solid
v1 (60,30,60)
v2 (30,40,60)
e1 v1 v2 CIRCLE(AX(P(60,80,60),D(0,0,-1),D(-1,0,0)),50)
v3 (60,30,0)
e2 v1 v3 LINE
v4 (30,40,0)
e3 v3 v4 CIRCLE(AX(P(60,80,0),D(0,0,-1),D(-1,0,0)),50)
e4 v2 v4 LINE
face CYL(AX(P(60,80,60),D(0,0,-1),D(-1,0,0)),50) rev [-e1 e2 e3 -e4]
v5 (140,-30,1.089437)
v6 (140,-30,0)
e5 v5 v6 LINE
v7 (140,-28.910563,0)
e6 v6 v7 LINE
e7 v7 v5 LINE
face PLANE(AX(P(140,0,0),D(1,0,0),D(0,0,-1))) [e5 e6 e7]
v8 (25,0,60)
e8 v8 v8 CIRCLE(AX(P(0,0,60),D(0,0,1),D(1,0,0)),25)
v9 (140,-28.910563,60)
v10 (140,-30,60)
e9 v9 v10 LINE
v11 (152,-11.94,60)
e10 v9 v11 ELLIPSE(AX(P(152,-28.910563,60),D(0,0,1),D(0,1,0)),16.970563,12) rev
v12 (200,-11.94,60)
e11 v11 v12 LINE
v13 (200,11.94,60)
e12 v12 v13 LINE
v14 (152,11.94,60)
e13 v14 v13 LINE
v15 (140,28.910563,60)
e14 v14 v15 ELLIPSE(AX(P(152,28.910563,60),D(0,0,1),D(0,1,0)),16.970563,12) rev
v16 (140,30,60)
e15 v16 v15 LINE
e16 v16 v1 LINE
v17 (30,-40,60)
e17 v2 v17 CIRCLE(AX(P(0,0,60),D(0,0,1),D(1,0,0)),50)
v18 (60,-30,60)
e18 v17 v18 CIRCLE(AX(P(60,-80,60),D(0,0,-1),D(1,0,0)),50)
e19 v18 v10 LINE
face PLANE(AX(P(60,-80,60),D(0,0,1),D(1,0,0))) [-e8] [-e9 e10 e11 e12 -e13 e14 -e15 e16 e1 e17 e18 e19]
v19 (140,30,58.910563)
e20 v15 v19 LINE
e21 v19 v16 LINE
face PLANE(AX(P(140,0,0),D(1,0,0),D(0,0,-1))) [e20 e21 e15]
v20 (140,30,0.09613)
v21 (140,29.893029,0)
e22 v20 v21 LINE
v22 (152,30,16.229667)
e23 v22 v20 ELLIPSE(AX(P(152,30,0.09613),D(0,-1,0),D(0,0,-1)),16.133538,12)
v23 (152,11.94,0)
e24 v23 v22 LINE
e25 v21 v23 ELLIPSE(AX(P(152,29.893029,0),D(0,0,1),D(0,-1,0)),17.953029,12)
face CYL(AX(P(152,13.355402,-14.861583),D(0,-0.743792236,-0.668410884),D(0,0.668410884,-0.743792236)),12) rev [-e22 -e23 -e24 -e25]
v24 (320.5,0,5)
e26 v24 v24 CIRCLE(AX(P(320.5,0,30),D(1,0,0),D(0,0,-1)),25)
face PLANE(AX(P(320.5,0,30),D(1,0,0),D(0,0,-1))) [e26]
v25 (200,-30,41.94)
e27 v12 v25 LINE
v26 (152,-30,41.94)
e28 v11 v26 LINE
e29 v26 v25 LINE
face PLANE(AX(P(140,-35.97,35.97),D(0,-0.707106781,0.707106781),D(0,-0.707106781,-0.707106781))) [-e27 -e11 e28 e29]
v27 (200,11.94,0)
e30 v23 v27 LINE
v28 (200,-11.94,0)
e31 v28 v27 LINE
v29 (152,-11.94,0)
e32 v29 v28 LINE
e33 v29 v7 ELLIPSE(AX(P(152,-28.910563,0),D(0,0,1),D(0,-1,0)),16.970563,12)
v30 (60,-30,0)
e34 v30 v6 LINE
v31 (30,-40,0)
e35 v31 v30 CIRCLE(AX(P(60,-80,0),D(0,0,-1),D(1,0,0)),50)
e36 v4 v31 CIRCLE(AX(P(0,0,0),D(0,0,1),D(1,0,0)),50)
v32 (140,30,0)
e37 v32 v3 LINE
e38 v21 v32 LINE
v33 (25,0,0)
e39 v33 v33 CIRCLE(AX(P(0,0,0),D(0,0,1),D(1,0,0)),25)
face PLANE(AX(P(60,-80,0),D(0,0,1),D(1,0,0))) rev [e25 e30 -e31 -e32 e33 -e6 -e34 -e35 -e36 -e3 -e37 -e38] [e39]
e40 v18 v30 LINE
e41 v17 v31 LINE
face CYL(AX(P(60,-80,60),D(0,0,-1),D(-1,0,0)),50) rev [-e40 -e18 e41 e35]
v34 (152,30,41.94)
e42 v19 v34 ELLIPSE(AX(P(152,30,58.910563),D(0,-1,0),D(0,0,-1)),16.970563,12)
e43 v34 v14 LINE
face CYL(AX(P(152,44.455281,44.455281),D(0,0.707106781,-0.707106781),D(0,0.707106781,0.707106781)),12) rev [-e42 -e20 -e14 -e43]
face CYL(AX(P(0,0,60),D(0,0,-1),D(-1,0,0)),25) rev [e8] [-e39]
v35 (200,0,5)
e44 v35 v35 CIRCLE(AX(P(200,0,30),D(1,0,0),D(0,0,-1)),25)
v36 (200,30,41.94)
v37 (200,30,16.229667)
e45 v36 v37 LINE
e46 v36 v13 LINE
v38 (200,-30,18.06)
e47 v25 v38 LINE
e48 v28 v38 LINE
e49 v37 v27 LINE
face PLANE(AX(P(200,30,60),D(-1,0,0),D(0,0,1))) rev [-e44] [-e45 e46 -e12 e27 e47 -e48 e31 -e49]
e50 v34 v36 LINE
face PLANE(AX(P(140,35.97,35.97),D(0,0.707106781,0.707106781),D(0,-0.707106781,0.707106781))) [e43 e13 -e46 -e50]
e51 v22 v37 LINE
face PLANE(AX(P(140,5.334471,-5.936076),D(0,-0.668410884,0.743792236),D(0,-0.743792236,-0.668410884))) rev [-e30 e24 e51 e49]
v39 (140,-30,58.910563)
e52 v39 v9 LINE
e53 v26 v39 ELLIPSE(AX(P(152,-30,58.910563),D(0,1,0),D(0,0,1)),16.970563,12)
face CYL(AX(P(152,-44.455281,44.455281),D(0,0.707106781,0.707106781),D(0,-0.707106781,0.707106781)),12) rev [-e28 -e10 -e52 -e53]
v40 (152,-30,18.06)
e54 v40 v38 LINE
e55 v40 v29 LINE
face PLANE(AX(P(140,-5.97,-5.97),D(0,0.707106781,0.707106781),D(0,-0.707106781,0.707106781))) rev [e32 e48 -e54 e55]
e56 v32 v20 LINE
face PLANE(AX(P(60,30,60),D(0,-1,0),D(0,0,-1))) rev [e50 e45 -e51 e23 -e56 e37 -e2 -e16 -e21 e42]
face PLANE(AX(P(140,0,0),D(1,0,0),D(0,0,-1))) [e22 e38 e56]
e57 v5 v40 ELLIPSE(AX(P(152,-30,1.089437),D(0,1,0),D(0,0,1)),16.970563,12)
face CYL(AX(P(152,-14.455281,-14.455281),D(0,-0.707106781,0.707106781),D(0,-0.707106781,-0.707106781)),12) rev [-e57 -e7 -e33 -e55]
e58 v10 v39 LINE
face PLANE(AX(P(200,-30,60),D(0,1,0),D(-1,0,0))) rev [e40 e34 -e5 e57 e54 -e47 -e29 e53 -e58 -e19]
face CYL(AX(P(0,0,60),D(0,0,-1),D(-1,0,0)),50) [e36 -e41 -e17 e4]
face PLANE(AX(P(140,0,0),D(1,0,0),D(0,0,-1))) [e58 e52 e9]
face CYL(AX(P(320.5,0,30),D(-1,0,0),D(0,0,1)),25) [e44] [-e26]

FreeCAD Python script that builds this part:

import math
import FreeCAD as App
import Part
import Sketcher

V = App.Vector


def edges_at(feature, points):
    """Names of the edges that pass closest to the given points."""
    edges = feature.Shape.Edges
    near = lambda p: min(range(len(edges)), key=lambda i: edges[i].distToShape(Part.Vertex(*p))[0])
    return sorted({f"Edge{near(p) + 1}" for p in points})


def add_polygon(sketch, points):
    """Adds a closed chain of lines whose ends are joined by coincident constraints."""
    first, n = sketch.GeometryCount, len(points)
    for a, b in zip(points, points[1:] + points[:1]):
        sketch.addGeometry(Part.LineSegment(App.Vector(*a, 0), App.Vector(*b, 0)), False)
    for i in range(n):
        sketch.addConstraint(Sketcher.Constraint("Coincident", first + i, 2, first + (i + 1) % n, 1))

doc = App.newDocument("Part")
body = doc.addObject("PartDesign::Body", "Body")

# Sketch on XY plane
sketch1 = body.newObject("Sketcher::SketchObject", "Sketch")
sketch1.AttachmentSupport = (doc.getObject("XY_Plane"), [""])
sketch1.MapMode = "FlatFace"
sketch1.addGeometry([
    Part.LineSegment(V(200, 30, 0), V(60, 30, 0)),  # 0
    Part.ArcOfCircle(Part.Circle(V(60, 80, 0), V(0, 0, 1), 50), math.radians(-126.869898), math.radians(-90)),  # 1
    Part.ArcOfCircle(Part.Circle(V(0, 0, 0), V(0, 0, 1), 50), math.radians(53.130102), math.radians(306.869898)),  # 2
    Part.ArcOfCircle(Part.Circle(V(60, -80, 0), V(0, 0, 1), 50), math.radians(90), math.radians(126.869898)),  # 3
    Part.LineSegment(V(60, -30, 0), V(200, -30, 0)),  # 4
    Part.LineSegment(V(200, -30, 0), V(200, 30, 0)),  # 5
    Part.Circle(V(0, 0, 0), V(0, 0, 1), 25),  # 6
], False)
sketch1.addConstraint([
    Sketcher.Constraint("Tangent", 0, 2, 1, 2),
    Sketcher.Constraint("Tangent", 1, 1, 2, 1),
    Sketcher.Constraint("Tangent", 2, 2, 3, 2),
    Sketcher.Constraint("Tangent", 3, 1, 4, 1),
    Sketcher.Constraint("Coincident", 4, 2, 5, 1),
    Sketcher.Constraint("Coincident", 5, 2, 0, 1),
    Sketcher.Constraint("Horizontal", 0),
    Sketcher.Constraint("Horizontal", 4),
    Sketcher.Constraint("Vertical", 5),
    Sketcher.Constraint("Coincident", 2, 3, -1, 1),
    Sketcher.Constraint("Coincident", 6, 3, -1, 1),
    Sketcher.Constraint("Equal", 1, 2),
    Sketcher.Constraint("Equal", 2, 3),
    Sketcher.Constraint("Vertical", 1, 3, 3, 3),
    Sketcher.Constraint("Diameter", 6, 50.0),
    Sketcher.Constraint("Radius", 1, 50.0),
    Sketcher.Constraint("DistanceX", 0, 2, 0, 1, 140.0),
    Sketcher.Constraint("DistanceY", 5, 1, 5, 2, 60.0),
])
pad1 = body.newObject("PartDesign::Pad", "Pad")
pad1.Profile = sketch1
pad1.Length = 60

# Sketch on YZ plane
sketch2 = body.newObject("Sketcher::SketchObject", "Sketch001")
sketch2.AttachmentSupport = (doc.getObject("YZ_Plane"), [""])
sketch2.MapMode = "FlatFace"
sketch2.AttachmentOffset = App.Placement(V(0, 0, 200), App.Rotation())
sketch2.addGeometry(Part.Circle(V(0, 30, 0), V(0, 0, 1), 25), False)
sketch2.addConstraint([
    Sketcher.Constraint("PointOnObject", 0, 3, -2),
    Sketcher.Constraint("Diameter", 0, 50.0),
    Sketcher.Constraint("DistanceY", -1, 1, 0, 3, 30.0),
])
pad2 = body.newObject("PartDesign::Pad", "Pad001")
pad2.Profile = sketch2
pad2.Length = 120.5

# Sketch on YZ plane
sketch3 = body.newObject("Sketcher::SketchObject", "Sketch002")
sketch3.AttachmentSupport = (doc.getObject("YZ_Plane"), [""])
sketch3.MapMode = "FlatFace"
sketch3.AttachmentOffset = App.Placement(V(0, 0, 200), App.Rotation())
add_polygon(sketch3, [(11.94, 60), (30, 41.94), (30, 60)])  # lines 0-2
add_polygon(sketch3, [(30, 0), (30, 16.229667), (11.94, 0)])  # lines 3-5
add_polygon(sketch3, [(-30, 41.94), (-11.94, 60), (-30, 60)])  # lines 6-8
add_polygon(sketch3, [(-30, 0), (-11.94, 0), (-30, 18.06)])  # lines 9-11
sketch3.addConstraint([
    Sketcher.Constraint("Vertical", 1),
    Sketcher.Constraint("Horizontal", 2),
    Sketcher.Constraint("Vertical", 3),
    Sketcher.Constraint("Horizontal", 5),
    Sketcher.Constraint("Horizontal", 7),
    Sketcher.Constraint("Vertical", 8),
    Sketcher.Constraint("Horizontal", 9),
    Sketcher.Constraint("Vertical", 11),
    Sketcher.Constraint("Symmetric", 4, 2, 9, 2, -1, 1),
    Sketcher.Constraint("Symmetric", 2, 2, 6, 2, -2),
    Sketcher.Constraint("Symmetric", 0, 2, 8, 2, -2),
    Sketcher.Constraint("Symmetric", 5, 2, 11, 2, -2),
    Sketcher.Constraint("Perpendicular", 0, 6),
    Sketcher.Constraint("Perpendicular", 6, 10),
    Sketcher.Constraint("Vertical", 1, 2, 3, 2),
    Sketcher.Constraint("Vertical", 2, 2, 4, 2),
    Sketcher.Constraint("DistanceX", -1, 1, 0, 2, 30.0),
    Sketcher.Constraint("DistanceY", -1, 1, 1, 2, 60.0),
    Sketcher.Constraint("DistanceX", 2, 2, 2, 1, 18.06),
    Sketcher.Constraint("DistanceY", 3, 1, 3, 2, 16.229667),
])
pocket1 = body.newObject("PartDesign::Pocket", "Pocket")
pocket1.Profile = sketch3
pocket1.Length = 60
doc.recompute()

fillet = body.newObject("PartDesign::Fillet", "Fillet")
fillet.Base = (pocket1, edges_at(pocket1, [
    (140, -20.97, 50.97),
    (140, -20.97, 9.03),
    (140, 20.97, 8.115),
    (140, 20.97, 50.97),
]))
fillet.Radius = 12

doc.recompute()
